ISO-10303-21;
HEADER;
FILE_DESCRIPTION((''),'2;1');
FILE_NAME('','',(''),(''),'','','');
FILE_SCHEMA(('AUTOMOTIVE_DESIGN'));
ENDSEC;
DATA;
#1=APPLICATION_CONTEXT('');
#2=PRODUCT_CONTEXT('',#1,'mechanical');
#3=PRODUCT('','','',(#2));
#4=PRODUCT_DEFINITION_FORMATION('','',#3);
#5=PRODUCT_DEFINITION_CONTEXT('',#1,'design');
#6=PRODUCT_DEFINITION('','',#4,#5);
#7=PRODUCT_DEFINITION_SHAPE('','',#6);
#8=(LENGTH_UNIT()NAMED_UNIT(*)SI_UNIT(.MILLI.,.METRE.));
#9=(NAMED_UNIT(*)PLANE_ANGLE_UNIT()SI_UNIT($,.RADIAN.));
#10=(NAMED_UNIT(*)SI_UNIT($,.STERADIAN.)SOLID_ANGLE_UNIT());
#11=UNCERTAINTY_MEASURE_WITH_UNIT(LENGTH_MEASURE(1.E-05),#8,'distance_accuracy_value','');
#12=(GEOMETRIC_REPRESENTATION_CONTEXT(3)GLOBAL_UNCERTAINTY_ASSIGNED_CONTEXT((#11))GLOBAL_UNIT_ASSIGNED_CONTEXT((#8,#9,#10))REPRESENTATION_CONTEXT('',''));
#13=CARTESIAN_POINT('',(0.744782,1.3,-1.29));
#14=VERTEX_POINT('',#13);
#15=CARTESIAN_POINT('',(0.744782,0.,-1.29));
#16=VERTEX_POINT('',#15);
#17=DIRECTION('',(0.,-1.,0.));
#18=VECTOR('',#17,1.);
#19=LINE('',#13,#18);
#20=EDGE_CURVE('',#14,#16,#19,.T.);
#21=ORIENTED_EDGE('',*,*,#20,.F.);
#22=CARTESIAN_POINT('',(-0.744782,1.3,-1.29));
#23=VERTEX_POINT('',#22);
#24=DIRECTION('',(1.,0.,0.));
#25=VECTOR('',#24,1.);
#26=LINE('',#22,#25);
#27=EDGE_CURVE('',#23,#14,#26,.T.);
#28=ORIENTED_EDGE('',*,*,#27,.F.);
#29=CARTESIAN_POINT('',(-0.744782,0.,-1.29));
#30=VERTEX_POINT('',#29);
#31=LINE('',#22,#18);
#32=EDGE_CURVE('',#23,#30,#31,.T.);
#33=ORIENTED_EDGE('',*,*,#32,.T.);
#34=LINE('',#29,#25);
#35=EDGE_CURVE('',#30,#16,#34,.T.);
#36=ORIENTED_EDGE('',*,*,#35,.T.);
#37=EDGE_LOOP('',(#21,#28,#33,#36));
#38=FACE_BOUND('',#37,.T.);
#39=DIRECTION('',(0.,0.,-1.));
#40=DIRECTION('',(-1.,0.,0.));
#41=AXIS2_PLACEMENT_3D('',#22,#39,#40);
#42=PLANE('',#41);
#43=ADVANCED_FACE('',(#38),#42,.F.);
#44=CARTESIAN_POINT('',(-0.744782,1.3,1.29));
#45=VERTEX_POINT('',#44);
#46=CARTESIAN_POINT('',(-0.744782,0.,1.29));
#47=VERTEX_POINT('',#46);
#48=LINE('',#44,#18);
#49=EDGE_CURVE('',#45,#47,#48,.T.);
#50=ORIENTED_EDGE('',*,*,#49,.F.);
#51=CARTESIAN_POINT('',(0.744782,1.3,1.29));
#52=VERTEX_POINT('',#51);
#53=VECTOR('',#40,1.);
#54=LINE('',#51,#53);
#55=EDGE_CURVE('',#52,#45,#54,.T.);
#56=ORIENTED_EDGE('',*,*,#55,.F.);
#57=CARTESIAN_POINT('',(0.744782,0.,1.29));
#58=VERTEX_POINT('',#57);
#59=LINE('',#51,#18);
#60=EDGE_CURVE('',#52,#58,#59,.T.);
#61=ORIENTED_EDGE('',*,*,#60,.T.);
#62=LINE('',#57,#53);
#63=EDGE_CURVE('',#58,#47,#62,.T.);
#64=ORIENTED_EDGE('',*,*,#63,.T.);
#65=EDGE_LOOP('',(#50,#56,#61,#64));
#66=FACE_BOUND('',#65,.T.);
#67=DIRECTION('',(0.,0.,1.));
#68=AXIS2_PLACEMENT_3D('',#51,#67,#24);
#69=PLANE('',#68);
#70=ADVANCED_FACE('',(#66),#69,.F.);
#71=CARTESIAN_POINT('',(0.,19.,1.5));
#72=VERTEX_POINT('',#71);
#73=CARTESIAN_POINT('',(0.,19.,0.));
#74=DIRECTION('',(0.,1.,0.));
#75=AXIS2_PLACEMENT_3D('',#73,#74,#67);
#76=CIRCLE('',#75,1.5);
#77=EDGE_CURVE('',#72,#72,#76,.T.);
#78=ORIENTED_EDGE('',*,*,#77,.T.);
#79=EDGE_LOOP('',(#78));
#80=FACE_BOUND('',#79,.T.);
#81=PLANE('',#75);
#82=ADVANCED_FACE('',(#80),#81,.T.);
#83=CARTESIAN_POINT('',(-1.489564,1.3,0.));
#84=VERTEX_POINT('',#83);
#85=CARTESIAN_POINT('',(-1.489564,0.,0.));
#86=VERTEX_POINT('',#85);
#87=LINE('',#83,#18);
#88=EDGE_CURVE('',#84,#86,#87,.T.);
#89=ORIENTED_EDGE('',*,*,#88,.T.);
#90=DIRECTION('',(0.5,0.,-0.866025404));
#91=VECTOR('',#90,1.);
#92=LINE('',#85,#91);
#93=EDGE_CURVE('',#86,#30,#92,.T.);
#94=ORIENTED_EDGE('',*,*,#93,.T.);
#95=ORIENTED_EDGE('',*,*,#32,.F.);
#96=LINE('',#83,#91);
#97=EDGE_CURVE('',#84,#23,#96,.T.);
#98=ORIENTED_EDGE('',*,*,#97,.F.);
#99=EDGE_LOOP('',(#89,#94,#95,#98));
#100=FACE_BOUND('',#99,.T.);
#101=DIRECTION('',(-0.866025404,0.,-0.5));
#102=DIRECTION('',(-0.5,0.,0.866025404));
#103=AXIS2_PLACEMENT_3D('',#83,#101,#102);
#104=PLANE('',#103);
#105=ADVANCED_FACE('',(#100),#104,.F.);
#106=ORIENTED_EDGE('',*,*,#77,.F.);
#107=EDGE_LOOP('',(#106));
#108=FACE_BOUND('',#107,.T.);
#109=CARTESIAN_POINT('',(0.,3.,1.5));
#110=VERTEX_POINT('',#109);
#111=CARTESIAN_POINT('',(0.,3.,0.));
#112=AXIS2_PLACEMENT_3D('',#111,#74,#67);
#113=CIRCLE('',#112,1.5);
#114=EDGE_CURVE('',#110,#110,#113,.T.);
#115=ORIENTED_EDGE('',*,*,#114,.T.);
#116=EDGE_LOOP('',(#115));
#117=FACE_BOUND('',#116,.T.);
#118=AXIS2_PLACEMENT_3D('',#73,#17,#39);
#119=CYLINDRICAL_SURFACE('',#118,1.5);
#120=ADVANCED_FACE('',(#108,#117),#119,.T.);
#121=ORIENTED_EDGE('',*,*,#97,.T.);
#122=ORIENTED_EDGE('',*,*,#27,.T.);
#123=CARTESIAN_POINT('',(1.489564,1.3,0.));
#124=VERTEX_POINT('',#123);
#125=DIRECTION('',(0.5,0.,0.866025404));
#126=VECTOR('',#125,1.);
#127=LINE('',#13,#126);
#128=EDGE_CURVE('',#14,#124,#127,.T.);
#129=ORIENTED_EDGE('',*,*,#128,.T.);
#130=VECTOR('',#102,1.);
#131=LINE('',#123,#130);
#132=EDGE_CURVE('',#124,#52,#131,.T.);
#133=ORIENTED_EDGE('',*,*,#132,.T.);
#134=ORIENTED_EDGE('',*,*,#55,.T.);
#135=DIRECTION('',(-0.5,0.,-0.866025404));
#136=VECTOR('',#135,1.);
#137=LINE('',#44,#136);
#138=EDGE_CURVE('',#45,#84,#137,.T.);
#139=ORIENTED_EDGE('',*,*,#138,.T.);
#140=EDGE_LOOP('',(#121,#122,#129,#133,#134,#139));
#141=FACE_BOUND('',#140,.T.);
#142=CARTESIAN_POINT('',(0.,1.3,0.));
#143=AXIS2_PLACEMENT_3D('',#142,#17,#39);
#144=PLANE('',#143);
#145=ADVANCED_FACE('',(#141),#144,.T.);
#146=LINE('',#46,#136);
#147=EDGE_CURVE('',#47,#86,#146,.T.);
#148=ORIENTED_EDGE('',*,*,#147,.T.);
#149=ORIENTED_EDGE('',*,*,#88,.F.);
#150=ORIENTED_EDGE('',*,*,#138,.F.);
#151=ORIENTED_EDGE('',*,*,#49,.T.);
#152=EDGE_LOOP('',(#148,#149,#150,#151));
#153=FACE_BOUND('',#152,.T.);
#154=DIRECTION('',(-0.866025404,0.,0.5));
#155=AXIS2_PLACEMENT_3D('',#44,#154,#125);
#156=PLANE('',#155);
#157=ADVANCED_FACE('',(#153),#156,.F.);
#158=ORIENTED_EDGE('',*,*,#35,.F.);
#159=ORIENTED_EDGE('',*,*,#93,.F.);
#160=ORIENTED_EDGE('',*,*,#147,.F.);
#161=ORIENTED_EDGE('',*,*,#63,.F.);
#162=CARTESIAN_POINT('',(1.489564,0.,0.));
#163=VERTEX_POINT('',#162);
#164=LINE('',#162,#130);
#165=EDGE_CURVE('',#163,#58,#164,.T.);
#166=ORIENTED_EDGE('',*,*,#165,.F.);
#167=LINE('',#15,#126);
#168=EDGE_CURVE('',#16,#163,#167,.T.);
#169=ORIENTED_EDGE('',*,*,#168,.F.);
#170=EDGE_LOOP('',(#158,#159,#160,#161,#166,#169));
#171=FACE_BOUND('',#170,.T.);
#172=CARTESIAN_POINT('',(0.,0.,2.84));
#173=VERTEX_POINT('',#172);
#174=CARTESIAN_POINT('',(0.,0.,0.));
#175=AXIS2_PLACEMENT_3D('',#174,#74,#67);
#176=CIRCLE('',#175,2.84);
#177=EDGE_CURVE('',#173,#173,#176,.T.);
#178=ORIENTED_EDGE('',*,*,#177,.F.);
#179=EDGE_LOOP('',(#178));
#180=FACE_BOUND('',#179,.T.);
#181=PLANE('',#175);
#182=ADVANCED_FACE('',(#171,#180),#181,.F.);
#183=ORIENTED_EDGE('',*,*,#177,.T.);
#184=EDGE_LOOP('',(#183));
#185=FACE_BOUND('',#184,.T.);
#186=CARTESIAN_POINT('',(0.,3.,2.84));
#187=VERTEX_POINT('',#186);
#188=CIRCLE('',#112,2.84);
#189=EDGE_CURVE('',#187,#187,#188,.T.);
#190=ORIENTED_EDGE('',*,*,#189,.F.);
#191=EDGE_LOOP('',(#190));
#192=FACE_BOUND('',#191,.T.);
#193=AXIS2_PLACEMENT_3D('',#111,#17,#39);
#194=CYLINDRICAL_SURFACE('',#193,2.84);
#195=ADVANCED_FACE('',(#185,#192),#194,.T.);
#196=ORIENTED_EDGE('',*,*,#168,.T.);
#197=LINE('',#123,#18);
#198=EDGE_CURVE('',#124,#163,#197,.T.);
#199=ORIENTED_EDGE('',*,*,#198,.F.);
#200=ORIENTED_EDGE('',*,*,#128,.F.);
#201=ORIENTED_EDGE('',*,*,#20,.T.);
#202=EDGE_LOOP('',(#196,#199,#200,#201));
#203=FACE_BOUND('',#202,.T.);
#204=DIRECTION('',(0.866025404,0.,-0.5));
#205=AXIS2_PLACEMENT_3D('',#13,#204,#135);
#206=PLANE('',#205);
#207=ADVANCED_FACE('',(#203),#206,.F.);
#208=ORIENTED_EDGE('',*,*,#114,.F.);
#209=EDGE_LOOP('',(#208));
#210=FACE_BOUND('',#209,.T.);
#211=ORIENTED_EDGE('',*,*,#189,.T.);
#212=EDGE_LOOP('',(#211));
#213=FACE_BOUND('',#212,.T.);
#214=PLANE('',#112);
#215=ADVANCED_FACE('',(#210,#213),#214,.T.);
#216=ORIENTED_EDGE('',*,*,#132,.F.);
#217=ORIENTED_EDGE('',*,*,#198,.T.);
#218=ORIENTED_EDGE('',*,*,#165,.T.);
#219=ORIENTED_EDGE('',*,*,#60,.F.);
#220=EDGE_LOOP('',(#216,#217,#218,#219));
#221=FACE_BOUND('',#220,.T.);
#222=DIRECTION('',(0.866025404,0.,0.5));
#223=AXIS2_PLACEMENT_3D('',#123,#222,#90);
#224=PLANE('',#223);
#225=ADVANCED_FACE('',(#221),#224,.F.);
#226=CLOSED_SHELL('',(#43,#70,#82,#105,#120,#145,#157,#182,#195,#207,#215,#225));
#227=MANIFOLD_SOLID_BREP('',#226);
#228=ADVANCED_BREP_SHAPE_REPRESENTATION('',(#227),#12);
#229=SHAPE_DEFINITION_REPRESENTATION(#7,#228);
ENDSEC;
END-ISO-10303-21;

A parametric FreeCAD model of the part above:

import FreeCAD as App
import Part
import Sketcher
from FreeCAD import Vector
Q = App.Units.Quantity


def add_polygon(sketch, points):
    """Adds a closed chain of lines whose ends are joined by coincident constraints."""
    first, n = sketch.GeometryCount, len(points)
    for a, b in zip(points, points[1:] + points[:1]):
        sketch.addGeometry(Part.LineSegment(App.Vector(*a, 0), App.Vector(*b, 0)), False)
    for i in range(n):
        sketch.addConstraint(Sketcher.Constraint("Coincident", first + i, 2, first + (i + 1) % n, 1))

doc = App.newDocument("Part")
params = doc.addObject("Spreadsheet::Sheet", "Params")
for row, (alias, value) in enumerate([
    ("sketch1_diameter", "5.68 mm"),
    ("pad1_length", "3 mm"),
    ("sketch2_diameter", "3 mm"),
    ("pad2_length", "16 mm"),
    ("pocket1_length", "1.3 mm"),
], start=1):
    params.set(f"A{row}", alias)
    params.set(f"B{row}", "=" + value)
    params.setAlias(f"B{row}", alias)

body = doc.addObject("PartDesign::Body", "Body")

sketch1 = doc.addObject("Sketcher::SketchObject", "Sketch")
body.addObject(sketch1)
sketch1.AttachmentSupport = (doc.XZ_Plane, [""])
sketch1.MapMode = "FlatFace"
sketch1.addGeometry(Part.Circle(Vector(0, 0, 0), Vector(0, 0, 1), 2.84), False)
sketch1.addConstraint(Sketcher.Constraint("Coincident", 0, 3, -1, 1))
sketch1.addConstraint(Sketcher.Constraint("Diameter", 0, Q("5.68 mm")))
sketch1.setExpression("Constraints[1]", "Params.sketch1_diameter")
pad1 = doc.addObject("PartDesign::Pad", "Pad")
body.addObject(pad1)
pad1.Profile = sketch1
pad1.setExpression("Length", "Params.pad1_length")
pad1.Reversed = True

sketch2 = doc.addObject("Sketcher::SketchObject", "Sketch001")
body.addObject(sketch2)
sketch2.AttachmentSupport = (doc.XZ_Plane, [""])
sketch2.MapMode = "FlatFace"
sketch2.AttachmentOffset = App.Placement(Vector(0, 0, -3), App.Rotation())
sketch2.addGeometry(Part.Circle(Vector(0, 0, 0), Vector(0, 0, 1), 1.5), False)
sketch2.addConstraint(Sketcher.Constraint("Coincident", 0, 3, -1, 1))
sketch2.addConstraint(Sketcher.Constraint("Diameter", 0, Q("3 mm")))
sketch2.setExpression("Constraints[1]", "Params.sketch2_diameter")
pad2 = doc.addObject("PartDesign::Pad", "Pad001")
body.addObject(pad2)
pad2.Profile = sketch2
pad2.setExpression("Length", "Params.pad2_length")
pad2.Reversed = True

sketch3 = doc.addObject("Sketcher::SketchObject", "Sketch002")
body.addObject(sketch3)
sketch3.AttachmentSupport = (doc.XZ_Plane, [""])
sketch3.MapMode = "FlatFace"
add_polygon(sketch3, [(0.744782, 1.29), (-0.744782, 1.29), (-1.489564, 0), (-0.744782, -1.29), (0.744782, -1.29), (1.489564, 0)])
sketch3.addConstraint(Sketcher.Constraint("Horizontal", 0))
sketch3.addConstraint(Sketcher.Constraint("Horizontal", 3))
sketch3.addConstraint(Sketcher.Constraint("Symmetric", 0, 2, 3, 2, -1, 1))
sketch3.addConstraint(Sketcher.Constraint("Symmetric", 1, 2, 4, 2, -1, 1))
sketch3.addConstraint(Sketcher.Constraint("PointOnObject", 1, 2, -1))
sketch3.addConstraint(Sketcher.Constraint("Parallel", 2, 5))
sketch3.addConstraint(Sketcher.Constraint("Vertical", 0, 2, 2, 2))
sketch3.addConstraint(Sketcher.Constraint("Angle", 1, Q("-120 deg")))
sketch3.addConstraint(Sketcher.Constraint("DistanceY", -1, 1, 0, 2, Q("1.29 mm")))
sketch3.addConstraint(Sketcher.Constraint("DistanceX", 0, 2, 0, 1, Q("1.489564 mm")))
pocket1 = doc.addObject("PartDesign::Pocket", "Pocket")
body.addObject(pocket1)
pocket1.Profile = sketch3
pocket1.setExpression("Length", "Params.pocket1_length")

doc.recompute()
